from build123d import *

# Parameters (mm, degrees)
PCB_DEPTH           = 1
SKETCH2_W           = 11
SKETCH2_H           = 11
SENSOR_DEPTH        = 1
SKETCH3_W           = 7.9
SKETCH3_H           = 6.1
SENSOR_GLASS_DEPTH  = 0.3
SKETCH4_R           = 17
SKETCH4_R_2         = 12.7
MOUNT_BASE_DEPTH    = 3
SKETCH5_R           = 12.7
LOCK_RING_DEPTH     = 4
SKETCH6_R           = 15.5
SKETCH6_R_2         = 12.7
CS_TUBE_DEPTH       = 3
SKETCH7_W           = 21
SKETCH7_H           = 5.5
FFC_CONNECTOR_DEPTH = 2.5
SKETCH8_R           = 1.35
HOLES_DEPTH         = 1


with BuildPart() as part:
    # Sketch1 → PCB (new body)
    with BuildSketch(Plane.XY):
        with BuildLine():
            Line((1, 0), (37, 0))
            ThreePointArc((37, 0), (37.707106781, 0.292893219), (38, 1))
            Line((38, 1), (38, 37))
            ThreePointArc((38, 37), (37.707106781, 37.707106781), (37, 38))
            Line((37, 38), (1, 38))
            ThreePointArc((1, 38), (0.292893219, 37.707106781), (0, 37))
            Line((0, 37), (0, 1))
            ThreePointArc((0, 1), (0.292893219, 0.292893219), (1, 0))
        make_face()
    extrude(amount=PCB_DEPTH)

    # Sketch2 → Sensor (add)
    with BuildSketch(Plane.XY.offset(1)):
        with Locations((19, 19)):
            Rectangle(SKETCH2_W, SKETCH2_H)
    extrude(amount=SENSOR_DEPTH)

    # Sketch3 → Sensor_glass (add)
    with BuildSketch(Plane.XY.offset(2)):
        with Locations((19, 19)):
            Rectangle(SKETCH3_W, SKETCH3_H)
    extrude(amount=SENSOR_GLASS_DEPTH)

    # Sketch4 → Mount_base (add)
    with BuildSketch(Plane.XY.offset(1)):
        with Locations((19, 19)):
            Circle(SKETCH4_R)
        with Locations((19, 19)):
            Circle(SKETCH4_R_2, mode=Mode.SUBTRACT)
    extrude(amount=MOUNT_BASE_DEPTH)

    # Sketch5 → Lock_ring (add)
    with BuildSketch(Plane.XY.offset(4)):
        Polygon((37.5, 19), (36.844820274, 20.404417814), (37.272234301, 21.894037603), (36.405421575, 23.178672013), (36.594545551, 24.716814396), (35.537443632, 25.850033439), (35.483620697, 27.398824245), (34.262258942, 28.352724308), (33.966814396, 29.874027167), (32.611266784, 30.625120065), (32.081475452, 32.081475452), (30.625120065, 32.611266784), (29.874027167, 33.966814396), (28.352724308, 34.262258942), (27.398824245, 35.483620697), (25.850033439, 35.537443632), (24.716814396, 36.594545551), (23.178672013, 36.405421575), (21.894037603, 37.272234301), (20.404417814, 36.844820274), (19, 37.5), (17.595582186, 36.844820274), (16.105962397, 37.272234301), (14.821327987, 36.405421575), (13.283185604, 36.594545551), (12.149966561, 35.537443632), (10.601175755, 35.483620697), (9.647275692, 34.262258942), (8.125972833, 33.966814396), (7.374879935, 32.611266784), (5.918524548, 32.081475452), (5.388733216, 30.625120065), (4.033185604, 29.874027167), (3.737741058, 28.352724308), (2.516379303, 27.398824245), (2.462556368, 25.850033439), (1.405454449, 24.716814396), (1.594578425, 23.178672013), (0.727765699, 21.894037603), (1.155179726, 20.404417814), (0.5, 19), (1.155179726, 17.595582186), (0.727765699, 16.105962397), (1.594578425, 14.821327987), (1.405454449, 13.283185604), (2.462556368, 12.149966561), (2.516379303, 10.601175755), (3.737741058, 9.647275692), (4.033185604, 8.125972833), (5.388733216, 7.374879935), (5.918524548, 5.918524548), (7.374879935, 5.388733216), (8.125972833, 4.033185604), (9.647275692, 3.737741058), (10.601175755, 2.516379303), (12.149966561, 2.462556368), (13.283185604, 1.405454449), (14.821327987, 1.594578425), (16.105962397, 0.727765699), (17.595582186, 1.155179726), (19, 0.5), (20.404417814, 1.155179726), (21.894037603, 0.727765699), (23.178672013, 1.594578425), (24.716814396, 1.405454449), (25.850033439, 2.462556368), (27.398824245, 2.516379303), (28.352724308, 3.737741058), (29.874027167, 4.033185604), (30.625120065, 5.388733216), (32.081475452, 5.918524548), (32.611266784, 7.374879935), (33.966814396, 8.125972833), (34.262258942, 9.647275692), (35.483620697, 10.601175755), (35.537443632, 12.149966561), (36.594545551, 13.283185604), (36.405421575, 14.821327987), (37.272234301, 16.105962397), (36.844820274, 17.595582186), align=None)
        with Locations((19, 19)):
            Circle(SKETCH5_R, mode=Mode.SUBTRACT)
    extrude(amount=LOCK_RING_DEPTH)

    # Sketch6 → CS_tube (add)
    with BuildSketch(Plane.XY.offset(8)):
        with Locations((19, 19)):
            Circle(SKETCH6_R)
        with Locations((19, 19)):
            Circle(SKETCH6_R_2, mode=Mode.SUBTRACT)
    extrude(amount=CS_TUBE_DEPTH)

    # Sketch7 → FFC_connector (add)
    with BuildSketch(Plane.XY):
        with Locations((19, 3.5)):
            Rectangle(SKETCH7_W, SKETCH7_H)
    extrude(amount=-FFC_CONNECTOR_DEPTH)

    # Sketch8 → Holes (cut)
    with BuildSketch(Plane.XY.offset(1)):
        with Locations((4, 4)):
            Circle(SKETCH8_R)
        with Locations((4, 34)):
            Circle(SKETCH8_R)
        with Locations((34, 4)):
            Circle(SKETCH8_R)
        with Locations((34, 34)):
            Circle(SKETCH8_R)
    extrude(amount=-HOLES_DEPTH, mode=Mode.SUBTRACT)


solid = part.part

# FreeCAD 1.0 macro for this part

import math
import FreeCAD as App
import Part
import Sketcher
Q = App.Units.Quantity


def add_polygon(sketch, points):
    """Adds a closed chain of lines whose ends are joined by coincident constraints."""
    first, n = sketch.GeometryCount, len(points)
    for a, b in zip(points, points[1:] + points[:1]):
        sketch.addGeometry(Part.LineSegment(App.Vector(*a, 0), App.Vector(*b, 0)), False)
    for i in range(n):
        sketch.addConstraint(Sketcher.Constraint("Coincident", first + i, 2, first + (i + 1) % n, 1))

doc = App.newDocument("Part")
params = doc.addObject("Spreadsheet::Sheet", "Params")
for row, (alias, value) in enumerate([
    ("sketch1_radius", "1 mm"),
    ("sketch1_width", "36 mm"),
    ("pad1_length", "1 mm"),
    ("sketch2_width", "11 mm"),
    ("pad2_length", "1 mm"),
    ("sketch3_width", "7.9 mm"),
    ("sketch3_height", "6.1 mm"),
    ("pad3_length", "0.3 mm"),
    ("sketch4_diameter", "34 mm"),
    ("sketch4_diameter2", "25.4 mm"),
    ("pad4_length", "3 mm"),
    ("sketch5_diameter", "25.4 mm"),
    ("pad5_length", "4 mm"),
    ("sketch6_diameter", "31 mm"),
    ("sketch6_diameter2", "25.4 mm"),
    ("pad6_length", "3 mm"),
    ("sketch7_width", "21 mm"),
    ("sketch7_height", "5.5 mm"),
    ("pad7_length", "2.5 mm"),
    ("sketch8_diameter", "2.7 mm"),
    ("pocket1_length", "1 mm"),
], start=1):
    params.set(f"A{row}", alias)
    params.set(f"B{row}", "=" + value)
    params.setAlias(f"B{row}", alias)

body = doc.addObject("PartDesign::Body", "Body")

# Sketch on XY plane
sketch1 = doc.addObject("Sketcher::SketchObject", "Sketch")
body.addObject(sketch1)
sketch1.AttachmentSupport = (doc.XY_Plane, [""])
sketch1.MapMode = "FlatFace"
sketch1.addGeometry([
    Part.LineSegment(App.Vector(1, 0, 0), App.Vector(37, 0, 0)),  # 0
    Part.ArcOfCircle(Part.Circle(App.Vector(37, 1, 0), App.Vector(0, 0, 1), 1), math.radians(-90), math.radians(0)),  # 1
    Part.LineSegment(App.Vector(38, 1, 0), App.Vector(38, 37, 0)),  # 2
    Part.ArcOfCircle(Part.Circle(App.Vector(37, 37, 0), App.Vector(0, 0, 1), 1), math.radians(0), math.radians(90)),  # 3
    Part.LineSegment(App.Vector(37, 38, 0), App.Vector(1, 38, 0)),  # 4
    Part.ArcOfCircle(Part.Circle(App.Vector(1, 37, 0), App.Vector(0, 0, 1), 1), math.radians(90), math.radians(180)),  # 5
    Part.LineSegment(App.Vector(0, 37, 0), App.Vector(0, 1, 0)),  # 6
    Part.ArcOfCircle(Part.Circle(App.Vector(1, 1, 0), App.Vector(0, 0, 1), 1), math.radians(-180), math.radians(-90)),  # 7
], False)
sketch1.addConstraint([
    Sketcher.Constraint("Tangent", 0, 2, 1, 1),
    Sketcher.Constraint("Tangent", 1, 2, 2, 1),
    Sketcher.Constraint("Tangent", 2, 2, 3, 1),
    Sketcher.Constraint("Tangent", 3, 2, 4, 1),
    Sketcher.Constraint("Tangent", 4, 2, 5, 1),
    Sketcher.Constraint("Tangent", 5, 2, 6, 1),
    Sketcher.Constraint("Tangent", 6, 2, 7, 1),
    Sketcher.Constraint("Tangent", 7, 2, 0, 1),
    Sketcher.Constraint("Horizontal", 0),
    Sketcher.Constraint("Vertical", 2),
    Sketcher.Constraint("Horizontal", 4),
    Sketcher.Constraint("Vertical", 6),
    Sketcher.Constraint("Equal", 1, 3),
    Sketcher.Constraint("Equal", 3, 5),
    Sketcher.Constraint("Equal", 5, 7),
    Sketcher.Constraint("PointOnObject", 0, 2, -1),
    Sketcher.Constraint("PointOnObject", 5, 2, -2),
    Sketcher.Constraint("Equal", 4, 2),
    Sketcher.Constraint("Radius", 1, Q("1 mm")),
    Sketcher.Constraint("DistanceX", 0, 1, 0, 2, Q("36 mm")),
])
sketch1.setExpression("Constraints[18]", "Params.sketch1_radius")
sketch1.setExpression("Constraints[19]", "Params.sketch1_width")
pad1 = doc.addObject("PartDesign::Pad", "Pad")
body.addObject(pad1)
pad1.Profile = sketch1
pad1.setExpression("Length", "Params.pad1_length")

# Sketch on XY plane
sketch2 = doc.addObject("Sketcher::SketchObject", "Sketch001")
body.addObject(sketch2)
sketch2.AttachmentSupport = (doc.XY_Plane, [""])
sketch2.MapMode = "FlatFace"
sketch2.AttachmentOffset = App.Placement(App.Vector(0, 0, 1), App.Rotation())
add_polygon(sketch2, [(14, 24), (14, 14), (24, 14), (24, 24)])  # lines 0-3
sketch2.addConstraint([
    Sketcher.Constraint("Vertical", 0),
    Sketcher.Constraint("Horizontal", 1),
    Sketcher.Constraint("Vertical", 2),
    Sketcher.Constraint("Horizontal", 3),
    Sketcher.Constraint("Equal", 3, 0),
    Sketcher.Constraint("DistanceX", 1, 1, 1, 2, Q("11 mm")),
    Sketcher.Constraint("DistanceX", -1, 1, 0, 2, Q("13.5 mm")),
    Sketcher.Constraint("DistanceY", -1, 1, 0, 2, Q("13.5 mm")),
])
sketch2.setExpression("Constraints[9]", "Params.sketch2_width")
pad2 = doc.addObject("PartDesign::Pad", "Pad001")
body.addObject(pad2)
pad2.Profile = sketch2
pad2.setExpression("Length", "Params.pad2_length")

# Sketch on XY plane
sketch3 = doc.addObject("Sketcher::SketchObject", "Sketch002")
body.addObject(sketch3)
sketch3.AttachmentSupport = (doc.XY_Plane, [""])
sketch3.MapMode = "FlatFace"
sketch3.AttachmentOffset = App.Placement(App.Vector(0, 0, 2), App.Rotation())
add_polygon(sketch3, [(15, 22), (15, 16), (23, 16), (23, 22)])  # lines 0-3
sketch3.addConstraint([
    Sketcher.Constraint("Vertical", 0),
    Sketcher.Constraint("Horizontal", 1),
    Sketcher.Constraint("Vertical", 2),
    Sketcher.Constraint("Horizontal", 3),
    Sketcher.Constraint("DistanceX", 1, 1, 1, 2, Q("7.9 mm")),
    Sketcher.Constraint("DistanceY", 0, 2, 0, 1, Q("6.1 mm")),
    Sketcher.Constraint("DistanceX", -1, 1, 0, 2, Q("15.05 mm")),
    Sketcher.Constraint("DistanceY", -1, 1, 0, 2, Q("15.95 mm")),
])
sketch3.setExpression("Constraints[8]", "Params.sketch3_width")
sketch3.setExpression("Constraints[9]", "Params.sketch3_height")
pad3 = doc.addObject("PartDesign::Pad", "Pad002")
body.addObject(pad3)
pad3.Profile = sketch3
pad3.setExpression("Length", "Params.pad3_length")

# Sketch on XY plane
sketch4 = doc.addObject("Sketcher::SketchObject", "Sketch003")
body.addObject(sketch4)
sketch4.AttachmentSupport = (doc.XY_Plane, [""])
sketch4.MapMode = "FlatFace"
sketch4.AttachmentOffset = App.Placement(App.Vector(0, 0, 1), App.Rotation())
sketch4.addGeometry([
    Part.Circle(App.Vector(19, 19, 0), App.Vector(0, 0, 1), 17),
    Part.Circle(App.Vector(19, 19, 0), App.Vector(0, 0, 1), 13),
], False)
sketch4.addConstraint([
    Sketcher.Constraint("Coincident", 1, 3, 0, 3),
    Sketcher.Constraint("Diameter", 0, Q("34 mm")),
    Sketcher.Constraint("Diameter", 1, Q("25.4 mm")),
    Sketcher.Constraint("DistanceX", -1, 1, 0, 3, Q("19 mm")),
    Sketcher.Constraint("DistanceY", -1, 1, 0, 3, Q("19 mm")),
])
sketch4.setExpression("Constraints[1]", "Params.sketch4_diameter")
sketch4.setExpression("Constraints[2]", "Params.sketch4_diameter2")
pad4 = doc.addObject("PartDesign::Pad", "Pad003")
body.addObject(pad4)
pad4.Profile = sketch4
pad4.setExpression("Length", "Params.pad4_length")

# Sketch on XY plane
sketch5 = doc.addObject("Sketcher::SketchObject", "Sketch004")
body.addObject(sketch5)
sketch5.AttachmentSupport = (doc.XY_Plane, [""])
sketch5.MapMode = "FlatFace"
sketch5.AttachmentOffset = App.Placement(App.Vector(0, 0, 4), App.Rotation())
add_polygon(sketch5, [(37.5, 19), (36.84482, 20.404418), (37.272234, 21.894038), (36.405422, 23.178672), (36.594546, 24.716814), (35.537444, 25.850033), (35.483621, 27.398824), (34.262259, 28.352724), (33.966814, 29.874027), (32.611267, 30.62512), (32.081475, 32.081475), (30.62512, 32.611267), (29.874027, 33.966814), (28.352724, 34.262259), (27.398824, 35.483621), (25.850033, 35.537444), (24.716814, 36.594546), (23.178672, 36.405422), (21.894038, 37.272234), (20.404418, 36.84482), (19, 37.5), (17.595582, 36.84482), (16.105962, 37.272234), (14.821328, 36.405422), (13.283186, 36.594546), (12.149967, 35.537444), (10.601176, 35.483621), (9.647276, 34.262259), (8.125973, 33.966814), (7.37488, 32.611267), (5.918525, 32.081475), (5.388733, 30.62512), (4.033186, 29.874027), (3.737741, 28.352724), (2.516379, 27.398824), (2.462556, 25.850033), (1.405454, 24.716814), (1.594578, 23.178672), (0.727766, 21.894038), (1.15518, 20.404418), (0.5, 19), (1.15518, 17.595582), (0.727766, 16.105962), (1.594578, 14.821328), (1.405454, 13.283186), (2.462556, 12.149967), (2.516379, 10.601176), (3.737741, 9.647276), (4.033186, 8.125973), (5.388733, 7.37488), (5.918525, 5.918525), (7.37488, 5.388733), (8.125973, 4.033186), (9.647276, 3.737741), (10.601176, 2.516379), (12.149967, 2.462556), (13.283186, 1.405454), (14.821328, 1.594578), (16.105962, 0.727766), (17.595582, 1.15518), (19, 0.5), (20.404418, 1.15518), (21.894038, 0.727766), (23.178672, 1.594578), (24.716814, 1.405454), (25.850033, 2.462556), (27.398824, 2.516379), (28.352724, 3.737741), (29.874027, 4.033186), (30.62512, 5.388733), (32.081475, 5.918525), (32.611267, 7.37488), (33.966814, 8.125973), (34.262259, 9.647276), (35.483621, 10.601176), (35.537444, 12.149967), (36.594546, 13.283186), (36.405422, 14.821328), (37.272234, 16.105962), (36.84482, 17.595582)])  # lines 0-79
sketch5.addGeometry(Part.Circle(App.Vector(19, 19, 0), App.Vector(0, 0, 1), 12.7), False)  # 80
sketch5.addConstraint([
    Sketcher.Constraint("Perpendicular", 0, 20),
    Sketcher.Constraint("Perpendicular", 1, 21),
    Sketcher.Constraint("Perpendicular", 2, 22),
    Sketcher.Constraint("Perpendicular", 3, 23),
    Sketcher.Constraint("Perpendicular", 4, 24),
    Sketcher.Constraint("Perpendicular", 5, 25),
    Sketcher.Constraint("Perpendicular", 6, 26),
    Sketcher.Constraint("Perpendicular", 7, 27),
    Sketcher.Constraint("Perpendicular", 8, 28),
    Sketcher.Constraint("Perpendicular", 9, 29),
    Sketcher.Constraint("Perpendicular", 10, 30),
    Sketcher.Constraint("Perpendicular", 11, 31),
    Sketcher.Constraint("Perpendicular", 12, 32),
    Sketcher.Constraint("Perpendicular", 13, 33),
    Sketcher.Constraint("Perpendicular", 14, 34),
    Sketcher.Constraint("Perpendicular", 15, 35),
    Sketcher.Constraint("Perpendicular", 16, 36),
    Sketcher.Constraint("Perpendicular", 17, 37),
    Sketcher.Constraint("Perpendicular", 18, 38),
    Sketcher.Constraint("Perpendicular", 19, 39),
    Sketcher.Constraint("Perpendicular", 20, 40),
    Sketcher.Constraint("Perpendicular", 21, 41),
    Sketcher.Constraint("Perpendicular", 22, 42),
    Sketcher.Constraint("Perpendicular", 23, 43),
    Sketcher.Constraint("Perpendicular", 24, 44),
    Sketcher.Constraint("Perpendicular", 25, 45),
    Sketcher.Constraint("Perpendicular", 26, 46),
    Sketcher.Constraint("Perpendicular", 27, 47),
    Sketcher.Constraint("Perpendicular", 28, 48),
    Sketcher.Constraint("Perpendicular", 29, 49),
    Sketcher.Constraint("Perpendicular", 30, 50),
    Sketcher.Constraint("Perpendicular", 31, 51),
    Sketcher.Constraint("Perpendicular", 32, 52),
    Sketcher.Constraint("Perpendicular", 33, 53),
    Sketcher.Constraint("Perpendicular", 34, 54),
    Sketcher.Constraint("Perpendicular", 35, 55),
    Sketcher.Constraint("Perpendicular", 36, 56),
    Sketcher.Constraint("Perpendicular", 37, 57),
    Sketcher.Constraint("Perpendicular", 38, 58),
    Sketcher.Constraint("Perpendicular", 39, 59),
    Sketcher.Constraint("Perpendicular", 40, 60),
    Sketcher.Constraint("Perpendicular", 41, 61),
    Sketcher.Constraint("Perpendicular", 42, 62),
    Sketcher.Constraint("Perpendicular", 43, 63),
    Sketcher.Constraint("Perpendicular", 44, 64),
    Sketcher.Constraint("Perpendicular", 45, 65),
    Sketcher.Constraint("Perpendicular", 46, 66),
    Sketcher.Constraint("Perpendicular", 47, 67),
    Sketcher.Constraint("Perpendicular", 48, 68),
    Sketcher.Constraint("Perpendicular", 49, 69),
    Sketcher.Constraint("Perpendicular", 50, 70),
    Sketcher.Constraint("Perpendicular", 51, 71),
    Sketcher.Constraint("Perpendicular", 52, 72),
    Sketcher.Constraint("Perpendicular", 53, 73),
    Sketcher.Constraint("Perpendicular", 54, 74),
    Sketcher.Constraint("Perpendicular", 55, 75),
    Sketcher.Constraint("Perpendicular", 56, 76),
    Sketcher.Constraint("Perpendicular", 57, 77),
    Sketcher.Constraint("Perpendicular", 58, 78),
    Sketcher.Constraint("Perpendicular", 59, 79),
    Sketcher.Constraint("Horizontal", 18, 2, 20, 2),
    Sketcher.Constraint("Horizontal", 17, 2, 21, 2),
    Sketcher.Constraint("Horizontal", 16, 2, 22, 2),
    Sketcher.Constraint("Horizontal", 15, 2, 23, 2),
    Sketcher.Constraint("Horizontal", 14, 2, 24, 2),
    Sketcher.Constraint("Horizontal", 13, 2, 25, 2),
    Sketcher.Constraint("Horizontal", 12, 2, 26, 2),
    Sketcher.Constraint("Horizontal", 11, 2, 27, 2),
    Sketcher.Constraint("Horizontal", 10, 2, 28, 2),
    Sketcher.Constraint("Horizontal", 9, 2, 29, 2),
    Sketcher.Constraint("Horizontal", 8, 2, 30, 2),
    Sketcher.Constraint("Horizontal", 7, 2, 31, 2),
    Sketcher.Constraint("Horizontal", 6, 2, 32, 2),
    Sketcher.Constraint("Horizontal", 5, 2, 33, 2),
    Sketcher.Constraint("Horizontal", 4, 2, 34, 2),
    Sketcher.Constraint("Horizontal", 3, 2, 35, 2),
    Sketcher.Constraint("Horizontal", 2, 2, 36, 2),
    Sketcher.Constraint("Horizontal", 1, 2, 37, 2),
    Sketcher.Constraint("Horizontal", 0, 2, 38, 2),
    Sketcher.Constraint("Horizontal", 80, 3, 39, 2),
    Sketcher.Constraint("Horizontal", 58, 2, 60, 2),
    Sketcher.Constraint("Horizontal", 57, 2, 61, 2),
    Sketcher.Constraint("Horizontal", 56, 2, 62, 2),
    Sketcher.Constraint("Horizontal", 55, 2, 63, 2),
    Sketcher.Constraint("Horizontal", 54, 2, 64, 2),
    Sketcher.Constraint("Horizontal", 53, 2, 65, 2),
    Sketcher.Constraint("Horizontal", 52, 2, 66, 2),
    Sketcher.Constraint("Horizontal", 51, 2, 67, 2),
    Sketcher.Constraint("Horizontal", 50, 2, 68, 2),
    Sketcher.Constraint("Horizontal", 49, 2, 69, 2),
    Sketcher.Constraint("Horizontal", 48, 2, 70, 2),
    Sketcher.Constraint("Horizontal", 47, 2, 71, 2),
    Sketcher.Constraint("Horizontal", 46, 2, 72, 2),
    Sketcher.Constraint("Horizontal", 45, 2, 73, 2),
    Sketcher.Constraint("Horizontal", 44, 2, 74, 2),
    Sketcher.Constraint("Horizontal", 43, 2, 75, 2),
    Sketcher.Constraint("Horizontal", 42, 2, 76, 2),
    Sketcher.Constraint("Horizontal", 41, 2, 77, 2),
    Sketcher.Constraint("Horizontal", 40, 2, 78, 2),
    Sketcher.Constraint("Horizontal", 39, 2, 79, 2),
    Sketcher.Constraint("Vertical", 80, 3, 19, 2),
    Sketcher.Constraint("Vertical", 38, 2, 40, 2),
    Sketcher.Constraint("Vertical", 37, 2, 41, 2),
    Sketcher.Constraint("Vertical", 36, 2, 42, 2),
    Sketcher.Constraint("Vertical", 35, 2, 43, 2),
    Sketcher.Constraint("Vertical", 34, 2, 44, 2),
    Sketcher.Constraint("Vertical", 33, 2, 45, 2),
    Sketcher.Constraint("Vertical", 32, 2, 46, 2),
    Sketcher.Constraint("Vertical", 31, 2, 47, 2),
    Sketcher.Constraint("Vertical", 30, 2, 48, 2),
    Sketcher.Constraint("Vertical", 29, 2, 49, 2),
    Sketcher.Constraint("Vertical", 28, 2, 50, 2),
    Sketcher.Constraint("Vertical", 27, 2, 51, 2),
    Sketcher.Constraint("Vertical", 26, 2, 52, 2),
    Sketcher.Constraint("Vertical", 25, 2, 53, 2),
    Sketcher.Constraint("Vertical", 24, 2, 54, 2),
    Sketcher.Constraint("Vertical", 23, 2, 55, 2),
    Sketcher.Constraint("Vertical", 22, 2, 56, 2),
    Sketcher.Constraint("Vertical", 21, 2, 57, 2),
    Sketcher.Constraint("Vertical", 20, 2, 58, 2),
    Sketcher.Constraint("Vertical", 19, 2, 59, 2),
    Sketcher.Constraint("Vertical", 18, 2, 60, 2),
    Sketcher.Constraint("Vertical", 17, 2, 61, 2),
    Sketcher.Constraint("Vertical", 16, 2, 62, 2),
    Sketcher.Constraint("Vertical", 15, 2, 63, 2),
    Sketcher.Constraint("Vertical", 14, 2, 64, 2),
    Sketcher.Constraint("Vertical", 13, 2, 65, 2),
    Sketcher.Constraint("Vertical", 12, 2, 66, 2),
    Sketcher.Constraint("Vertical", 11, 2, 67, 2),
    Sketcher.Constraint("Vertical", 10, 2, 68, 2),
    Sketcher.Constraint("Equal", 0, 1),
    Sketcher.Constraint("Equal", 1, 2),
    Sketcher.Constraint("Equal", 2, 3),
    Sketcher.Constraint("Equal", 3, 4),
    Sketcher.Constraint("Equal", 4, 5),
    Sketcher.Constraint("Equal", 5, 6),
    Sketcher.Constraint("Equal", 6, 7),
    Sketcher.Constraint("Equal", 7, 8),
    Sketcher.Constraint("Equal", 8, 9),
    Sketcher.Constraint("Equal", 9, 10),
    Sketcher.Constraint("Equal", 10, 11),
    Sketcher.Constraint("Equal", 11, 12),
    Sketcher.Constraint("Equal", 12, 13),
    Sketcher.Constraint("Equal", 13, 14),
    Sketcher.Constraint("Equal", 14, 15),
    Sketcher.Constraint("Equal", 15, 16),
    Sketcher.Constraint("Equal", 16, 17),
    Sketcher.Constraint("Equal", 17, 18),
    Sketcher.Constraint("Equal", 18, 19),
    Sketcher.Constraint("Diameter", 80, Q("25.4 mm")),
    Sketcher.Constraint("DistanceX", -1, 1, 80, 3, Q("19 mm")),
    Sketcher.Constraint("DistanceY", -1, 1, 80, 3, Q("19 mm")),
    Sketcher.Constraint("DistanceY", -1, 1, 19, 2, Q("37.5 mm")),
    Sketcher.Constraint("DistanceX", -1, 1, 0, 2, Q("36.84482 mm")),
    Sketcher.Constraint("DistanceX", -1, 1, 2, 2, Q("36.405422 mm")),
    Sketcher.Constraint("DistanceX", -1, 1, 5, 2, Q("35.483621 mm")),
    Sketcher.Constraint("DistanceX", -1, 1, 6, 2, Q("34.262259 mm")),
    Sketcher.Constraint("DistanceY", -1, 1, 8, 2, Q("30.62512 mm")),
    Sketcher.Constraint("Distance", 0, Q("1.549726 mm")),
    Sketcher.Constraint("DistanceX", -1, 1, 1, 2, Q("37.272234 mm")),
    Sketcher.Constraint("DistanceX", -1, 1, 3, 2, Q("36.594546 mm")),
    Sketcher.Constraint("DistanceX", -1, 1, 4, 2, Q("35.537444 mm")),
    Sketcher.Constraint("DistanceX", -1, 1, 7, 2, Q("33.966814 mm")),
])
sketch5.setExpression("Constraints[229]", "Params.sketch5_diameter")
pad5 = doc.addObject("PartDesign::Pad", "Pad004")
body.addObject(pad5)
pad5.Profile = sketch5
pad5.setExpression("Length", "Params.pad5_length")

# Sketch on XY plane
sketch6 = doc.addObject("Sketcher::SketchObject", "Sketch005")
body.addObject(sketch6)
sketch6.AttachmentSupport = (doc.XY_Plane, [""])
sketch6.MapMode = "FlatFace"
sketch6.AttachmentOffset = App.Placement(App.Vector(0, 0, 8), App.Rotation())
sketch6.addGeometry([
    Part.Circle(App.Vector(19, 19, 0), App.Vector(0, 0, 1), 16),
    Part.Circle(App.Vector(19, 19, 0), App.Vector(0, 0, 1), 13),
], False)
sketch6.addConstraint([
    Sketcher.Constraint("Coincident", 1, 3, 0, 3),
    Sketcher.Constraint("Diameter", 0, Q("31 mm")),
    Sketcher.Constraint("Diameter", 1, Q("25.4 mm")),
    Sketcher.Constraint("DistanceX", -1, 1, 0, 3, Q("19 mm")),
    Sketcher.Constraint("DistanceY", -1, 1, 0, 3, Q("19 mm")),
])
sketch6.setExpression("Constraints[1]", "Params.sketch6_diameter")
sketch6.setExpression("Constraints[2]", "Params.sketch6_diameter2")
pad6 = doc.addObject("PartDesign::Pad", "Pad005")
body.addObject(pad6)
pad6.Profile = sketch6
pad6.setExpression("Length", "Params.pad6_length")

# Sketch on XY plane
sketch7 = doc.addObject("Sketcher::SketchObject", "Sketch006")
body.addObject(sketch7)
sketch7.AttachmentSupport = (doc.XY_Plane, [""])
sketch7.MapMode = "FlatFace"
add_polygon(sketch7, [(8, 6), (8, 1), (30, 1), (30, 6)])  # lines 0-3
sketch7.addConstraint([
    Sketcher.Constraint("Vertical", 0),
    Sketcher.Constraint("Horizontal", 1),
    Sketcher.Constraint("Vertical", 2),
    Sketcher.Constraint("Horizontal", 3),
    Sketcher.Constraint("DistanceX", 1, 1, 1, 2, Q("21 mm")),
    Sketcher.Constraint("DistanceY", 0, 2, 0, 1, Q("5.5 mm")),
    Sketcher.Constraint("DistanceX", -1, 1, 0, 2, Q("8.5 mm")),
    Sketcher.Constraint("DistanceY", -1, 1, 0, 2, Q("0.75 mm")),
])
sketch7.setExpression("Constraints[8]", "Params.sketch7_width")
sketch7.setExpression("Constraints[9]", "Params.sketch7_height")
pad7 = doc.addObject("PartDesign::Pad", "Pad006")
body.addObject(pad7)
pad7.Profile = sketch7
pad7.setExpression("Length", "Params.pad7_length")
pad7.Reversed = True

# Sketch on XY plane
sketch8 = doc.addObject("Sketcher::SketchObject", "Sketch007")
body.addObject(sketch8)
sketch8.AttachmentSupport = (doc.XY_Plane, [""])
sketch8.MapMode = "FlatFace"
sketch8.AttachmentOffset = App.Placement(App.Vector(0, 0, 1), App.Rotation())
sketch8.addGeometry([
    Part.Circle(App.Vector(4, 4, 0), App.Vector(0, 0, 1), 1.4),
    Part.Circle(App.Vector(4, 34, 0), App.Vector(0, 0, 1), 1.4),
    Part.Circle(App.Vector(34, 4, 0), App.Vector(0, 0, 1), 1.4),
    Part.Circle(App.Vector(34, 34, 0), App.Vector(0, 0, 1), 1.4),
], False)
sketch8.addConstraint([
    Sketcher.Constraint("Equal", 0, 1),
    Sketcher.Constraint("Equal", 1, 2),
    Sketcher.Constraint("Equal", 2, 3),
    Sketcher.Constraint("Horizontal", 0, 3, 2, 3),
    Sketcher.Constraint("Horizontal", 1, 3, 3, 3),
    Sketcher.Constraint("Vertical", 0, 3, 1, 3),
    Sketcher.Constraint("Vertical", 2, 3, 3, 3),
    Sketcher.Constraint("Diameter", 0, Q("2.7 mm")),
    Sketcher.Constraint("DistanceX", -1, 1, 0, 3, Q("4 mm")),
    Sketcher.Constraint("DistanceY", -1, 1, 0, 3, Q("4 mm")),
    Sketcher.Constraint("DistanceY", -1, 1, 1, 3, Q("34 mm")),
    Sketcher.Constraint("DistanceX", -1, 1, 2, 3, Q("34 mm")),
])
sketch8.setExpression("Constraints[7]", "Params.sketch8_diameter")
pocket1 = doc.addObject("PartDesign::Pocket", "Pocket")
body.addObject(pocket1)
pocket1.Profile = sketch8
pocket1.setExpression("Length", "Params.pocket1_length")

doc.recompute()
